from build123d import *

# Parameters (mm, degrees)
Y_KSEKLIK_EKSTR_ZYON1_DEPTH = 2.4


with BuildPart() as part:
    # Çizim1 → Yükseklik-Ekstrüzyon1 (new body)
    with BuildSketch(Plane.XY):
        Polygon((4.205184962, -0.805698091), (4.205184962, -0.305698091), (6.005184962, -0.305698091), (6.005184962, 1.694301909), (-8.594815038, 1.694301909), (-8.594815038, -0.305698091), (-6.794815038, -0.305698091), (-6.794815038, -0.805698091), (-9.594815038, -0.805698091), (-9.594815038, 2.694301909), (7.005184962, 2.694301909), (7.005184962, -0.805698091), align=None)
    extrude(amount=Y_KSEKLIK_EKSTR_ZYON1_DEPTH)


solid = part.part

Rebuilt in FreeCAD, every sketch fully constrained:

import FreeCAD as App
import Part
import Sketcher
from FreeCAD import Vector
Q = App.Units.Quantity


def add_polygon(sketch, points):
    """Adds a closed chain of lines whose ends are joined by coincident constraints."""
    first, n = sketch.GeometryCount, len(points)
    for a, b in zip(points, points[1:] + points[:1]):
        sketch.addGeometry(Part.LineSegment(App.Vector(*a, 0), App.Vector(*b, 0)), False)
    for i in range(n):
        sketch.addConstraint(Sketcher.Constraint("Coincident", first + i, 2, first + (i + 1) % n, 1))

doc = App.newDocument("Part")
body = doc.addObject("PartDesign::Body", "Body")

# Sketch on XY plane
sketch1 = body.newObject("Sketcher::SketchObject", "Sketch")
sketch1.AttachmentSupport = (doc.getObject("XY_Plane"), [""])
sketch1.MapMode = "FlatFace"
add_polygon(sketch1, [(4.2, -0.3), (4.2, -0.8), (7, -0.8), (7, 2.7), (-9.6, 2.7), (-9.6, -0.8), (-6.8, -0.8), (-6.8, -0.3), (-8.6, -0.3), (-8.6, 1.7), (6, 1.7), (6, -0.3)])  # lines 0-11
sketch1.addConstraint([
    Sketcher.Constraint("Vertical", 0),
    Sketcher.Constraint("Horizontal", 1),
    Sketcher.Constraint("Vertical", 2),
    Sketcher.Constraint("Horizontal", 3),
    Sketcher.Constraint("Vertical", 4),
    Sketcher.Constraint("Horizontal", 5),
    Sketcher.Constraint("Vertical", 6),
    Sketcher.Constraint("Horizontal", 7),
    Sketcher.Constraint("Vertical", 8),
    Sketcher.Constraint("Horizontal", 9),
    Sketcher.Constraint("Vertical", 10),
    Sketcher.Constraint("Horizontal", 11),
    Sketcher.Constraint("Horizontal", 1, 2, 4, 2),
    Sketcher.Constraint("Horizontal", 7, 2, 10, 2),
    Sketcher.Constraint("Equal", 1, 5),
    Sketcher.Constraint("Equal", 7, 11),
    Sketcher.Constraint("DistanceY", 8, 1, 8, 2, Q("2 mm")),
    Sketcher.Constraint("DistanceX", 1, 1, 1, 2, Q("2.8 mm")),
    Sketcher.Constraint("DistanceX", 3, 2, 3, 1, Q("16.6 mm")),
    Sketcher.Constraint("DistanceX", 7, 2, 7, 1, Q("1.8 mm")),
    Sketcher.Constraint("DistanceY", 0, 2, 0, 1, Q("0.5 mm")),
    Sketcher.Constraint("DistanceY", 2, 1, 2, 2, Q("3.5 mm")),
    Sketcher.Constraint("DistanceY", 0, 2, -1, 1, Q("0.805698 mm")),
    Sketcher.Constraint("DistanceX", -1, 1, 0, 2, Q("4.205185 mm")),
])
pad1 = body.newObject("PartDesign::Pad", "Pad")
pad1.Profile = sketch1
pad1.Length = 2.4

doc.recompute()
